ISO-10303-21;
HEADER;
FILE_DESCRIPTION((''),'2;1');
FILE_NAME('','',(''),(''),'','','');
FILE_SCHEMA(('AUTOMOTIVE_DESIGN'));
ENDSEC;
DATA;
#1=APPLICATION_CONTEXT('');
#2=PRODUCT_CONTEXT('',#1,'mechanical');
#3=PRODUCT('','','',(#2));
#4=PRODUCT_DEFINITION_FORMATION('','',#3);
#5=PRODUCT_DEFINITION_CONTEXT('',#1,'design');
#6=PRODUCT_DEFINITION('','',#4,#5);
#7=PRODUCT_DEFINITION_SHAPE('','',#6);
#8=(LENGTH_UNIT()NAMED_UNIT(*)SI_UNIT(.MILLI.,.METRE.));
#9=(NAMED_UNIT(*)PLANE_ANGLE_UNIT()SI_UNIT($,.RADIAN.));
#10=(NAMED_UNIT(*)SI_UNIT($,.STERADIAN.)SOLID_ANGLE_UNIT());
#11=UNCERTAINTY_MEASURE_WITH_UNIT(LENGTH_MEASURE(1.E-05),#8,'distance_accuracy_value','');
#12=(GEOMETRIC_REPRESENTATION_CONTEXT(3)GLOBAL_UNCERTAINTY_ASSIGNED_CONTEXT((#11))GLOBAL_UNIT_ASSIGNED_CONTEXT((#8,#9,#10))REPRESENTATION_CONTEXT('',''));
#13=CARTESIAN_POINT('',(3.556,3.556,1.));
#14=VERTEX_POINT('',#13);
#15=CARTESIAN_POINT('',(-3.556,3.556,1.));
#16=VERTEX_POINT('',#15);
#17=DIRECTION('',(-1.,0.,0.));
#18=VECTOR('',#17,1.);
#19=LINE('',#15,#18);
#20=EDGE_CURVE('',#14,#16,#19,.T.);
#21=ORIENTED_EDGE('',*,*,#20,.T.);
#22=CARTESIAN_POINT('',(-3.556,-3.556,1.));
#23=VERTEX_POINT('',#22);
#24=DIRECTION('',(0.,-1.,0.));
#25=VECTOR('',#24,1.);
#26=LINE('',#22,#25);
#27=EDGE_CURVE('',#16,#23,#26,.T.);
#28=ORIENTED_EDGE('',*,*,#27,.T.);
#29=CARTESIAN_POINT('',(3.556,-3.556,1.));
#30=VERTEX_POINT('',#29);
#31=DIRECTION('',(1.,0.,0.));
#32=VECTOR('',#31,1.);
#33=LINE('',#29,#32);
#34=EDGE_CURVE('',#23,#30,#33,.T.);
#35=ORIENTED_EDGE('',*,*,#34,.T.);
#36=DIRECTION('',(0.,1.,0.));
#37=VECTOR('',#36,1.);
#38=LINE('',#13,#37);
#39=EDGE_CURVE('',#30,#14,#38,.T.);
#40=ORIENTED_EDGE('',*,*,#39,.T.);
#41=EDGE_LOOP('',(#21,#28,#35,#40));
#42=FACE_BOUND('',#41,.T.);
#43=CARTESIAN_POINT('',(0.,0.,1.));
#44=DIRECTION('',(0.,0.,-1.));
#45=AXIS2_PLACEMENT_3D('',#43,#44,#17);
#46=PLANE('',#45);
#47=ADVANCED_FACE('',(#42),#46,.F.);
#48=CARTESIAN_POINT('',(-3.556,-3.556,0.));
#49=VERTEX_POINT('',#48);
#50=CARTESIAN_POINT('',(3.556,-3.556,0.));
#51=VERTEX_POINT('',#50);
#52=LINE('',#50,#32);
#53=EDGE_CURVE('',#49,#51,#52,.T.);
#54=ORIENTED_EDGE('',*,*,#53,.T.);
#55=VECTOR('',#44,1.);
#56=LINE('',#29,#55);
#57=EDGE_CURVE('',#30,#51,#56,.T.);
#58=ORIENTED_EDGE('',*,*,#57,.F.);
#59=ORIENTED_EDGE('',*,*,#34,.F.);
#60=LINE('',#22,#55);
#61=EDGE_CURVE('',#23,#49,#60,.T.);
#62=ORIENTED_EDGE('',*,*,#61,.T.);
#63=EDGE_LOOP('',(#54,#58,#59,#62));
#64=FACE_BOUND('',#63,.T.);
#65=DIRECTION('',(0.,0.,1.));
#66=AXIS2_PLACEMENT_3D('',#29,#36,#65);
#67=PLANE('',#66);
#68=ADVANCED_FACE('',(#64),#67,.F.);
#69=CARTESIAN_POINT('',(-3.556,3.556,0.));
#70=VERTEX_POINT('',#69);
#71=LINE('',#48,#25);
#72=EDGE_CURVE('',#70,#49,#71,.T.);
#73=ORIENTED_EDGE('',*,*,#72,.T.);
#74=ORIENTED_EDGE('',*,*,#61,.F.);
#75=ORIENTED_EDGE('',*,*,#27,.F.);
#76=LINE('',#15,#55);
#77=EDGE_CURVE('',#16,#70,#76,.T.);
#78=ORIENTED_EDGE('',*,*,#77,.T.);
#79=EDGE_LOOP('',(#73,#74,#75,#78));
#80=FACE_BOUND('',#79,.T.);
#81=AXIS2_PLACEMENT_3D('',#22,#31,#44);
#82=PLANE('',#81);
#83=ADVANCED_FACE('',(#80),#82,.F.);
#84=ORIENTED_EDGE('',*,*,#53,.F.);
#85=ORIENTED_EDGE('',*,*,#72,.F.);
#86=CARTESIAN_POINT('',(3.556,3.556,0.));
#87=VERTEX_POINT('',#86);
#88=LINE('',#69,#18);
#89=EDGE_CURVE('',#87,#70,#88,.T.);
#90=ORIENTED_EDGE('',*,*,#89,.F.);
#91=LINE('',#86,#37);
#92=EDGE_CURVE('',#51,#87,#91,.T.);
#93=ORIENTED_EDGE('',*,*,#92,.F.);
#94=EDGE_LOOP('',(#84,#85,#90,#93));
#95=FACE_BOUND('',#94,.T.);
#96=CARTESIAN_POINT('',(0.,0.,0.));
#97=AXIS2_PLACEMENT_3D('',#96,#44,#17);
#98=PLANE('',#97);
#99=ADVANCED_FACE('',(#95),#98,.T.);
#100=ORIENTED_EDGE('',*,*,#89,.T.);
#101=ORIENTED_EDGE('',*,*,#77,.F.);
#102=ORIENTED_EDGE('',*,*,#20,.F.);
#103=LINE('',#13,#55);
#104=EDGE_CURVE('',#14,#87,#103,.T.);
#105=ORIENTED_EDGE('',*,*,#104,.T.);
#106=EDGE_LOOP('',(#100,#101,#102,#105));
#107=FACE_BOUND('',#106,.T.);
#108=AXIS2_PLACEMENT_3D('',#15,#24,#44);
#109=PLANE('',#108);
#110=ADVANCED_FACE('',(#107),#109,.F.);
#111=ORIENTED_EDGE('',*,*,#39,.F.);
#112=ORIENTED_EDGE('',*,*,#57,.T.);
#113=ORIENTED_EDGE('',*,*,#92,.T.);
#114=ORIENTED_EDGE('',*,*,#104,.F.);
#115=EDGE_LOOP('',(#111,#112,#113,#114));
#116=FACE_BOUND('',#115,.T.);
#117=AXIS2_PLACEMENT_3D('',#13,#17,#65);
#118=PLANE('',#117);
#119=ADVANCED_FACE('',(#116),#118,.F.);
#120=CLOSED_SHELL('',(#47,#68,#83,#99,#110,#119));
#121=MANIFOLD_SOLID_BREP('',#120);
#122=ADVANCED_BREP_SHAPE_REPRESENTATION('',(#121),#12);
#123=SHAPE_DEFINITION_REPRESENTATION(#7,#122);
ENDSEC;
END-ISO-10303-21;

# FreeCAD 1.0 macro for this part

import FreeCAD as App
import Part
import Sketcher

V = App.Vector

doc = App.newDocument("Part")
body = doc.addObject("PartDesign::Body", "Body")

# Sketch on XY plane
sketch1 = body.newObject("Sketcher::SketchObject", "Sketch")
sketch1.AttachmentSupport = (doc.getObject("XY_Plane"), [""])
sketch1.MapMode = "FlatFace"
sketch1.addGeometry(Part.LineSegment(V(-4, 4, 0), V(-4, -4, 0)), False)
sketch1.addGeometry(Part.LineSegment(V(-4, -4, 0), V(4, -4, 0)), False)
sketch1.addGeometry(Part.LineSegment(V(4, -4, 0), V(4, 4, 0)), False)
sketch1.addGeometry(Part.LineSegment(V(4, 4, 0), V(-4, 4, 0)), False)
sketch1.addConstraint(Sketcher.Constraint("Coincident", 0, 2, 1, 1))
sketch1.addConstraint(Sketcher.Constraint("Coincident", 1, 2, 2, 1))
sketch1.addConstraint(Sketcher.Constraint("Coincident", 2, 2, 3, 1))
sketch1.addConstraint(Sketcher.Constraint("Coincident", 3, 2, 0, 1))
sketch1.addConstraint(Sketcher.Constraint("Vertical", 0))
sketch1.addConstraint(Sketcher.Constraint("Horizontal", 1))
sketch1.addConstraint(Sketcher.Constraint("Vertical", 2))
sketch1.addConstraint(Sketcher.Constraint("Horizontal", 3))
sketch1.addConstraint(Sketcher.Constraint("Symmetric", 0, 2, 2, 2, -1, 1))
sketch1.addConstraint(Sketcher.Constraint("Equal", 3, 0))
sketch1.addConstraint(Sketcher.Constraint("DistanceX", 1, 1, 1, 2, 7.112))
pad1 = body.newObject("PartDesign::Pad", "Pad")
pad1.Profile = sketch1
pad1.Length = 1

doc.recompute()
